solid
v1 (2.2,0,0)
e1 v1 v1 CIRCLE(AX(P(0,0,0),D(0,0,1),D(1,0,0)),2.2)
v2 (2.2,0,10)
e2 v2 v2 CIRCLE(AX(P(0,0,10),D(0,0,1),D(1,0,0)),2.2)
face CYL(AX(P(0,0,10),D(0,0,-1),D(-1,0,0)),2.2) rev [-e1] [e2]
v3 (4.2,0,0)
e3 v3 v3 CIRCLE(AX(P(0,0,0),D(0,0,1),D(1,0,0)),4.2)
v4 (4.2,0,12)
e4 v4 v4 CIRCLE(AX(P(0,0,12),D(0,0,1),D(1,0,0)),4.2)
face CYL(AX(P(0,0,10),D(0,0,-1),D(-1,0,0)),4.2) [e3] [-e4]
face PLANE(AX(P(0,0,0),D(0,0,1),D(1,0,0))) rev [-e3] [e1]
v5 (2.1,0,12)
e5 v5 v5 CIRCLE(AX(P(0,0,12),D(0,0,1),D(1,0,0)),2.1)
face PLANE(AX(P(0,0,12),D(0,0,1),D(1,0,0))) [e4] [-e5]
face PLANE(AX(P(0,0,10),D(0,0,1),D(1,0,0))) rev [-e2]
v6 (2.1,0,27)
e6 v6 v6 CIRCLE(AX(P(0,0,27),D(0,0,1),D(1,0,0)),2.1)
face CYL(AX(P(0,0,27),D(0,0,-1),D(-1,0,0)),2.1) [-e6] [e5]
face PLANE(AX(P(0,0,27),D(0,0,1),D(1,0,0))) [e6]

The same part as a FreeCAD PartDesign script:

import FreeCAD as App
import Part
import Sketcher
from FreeCAD import Vector
Q = App.Units.Quantity

doc = App.newDocument("Part")
params = doc.addObject("Spreadsheet::Sheet", "Params")
for row, (alias, value) in enumerate([
    ("sketch1_diameter", "8.4 mm"),
    ("sketch1_diameter2", "4.4 mm"),
    ("pad1_length", "10 mm"),
    ("sketch2_diameter", "8.4 mm"),
    ("pad2_length", "2 mm"),
    ("sketch3_diameter", "4.2 mm"),
    ("pad3_length", "15 mm"),
], start=1):
    params.set(f"A{row}", alias)
    params.set(f"B{row}", "=" + value)
    params.setAlias(f"B{row}", alias)

body = doc.addObject("PartDesign::Body", "Body")

sketch1 = doc.addObject("Sketcher::SketchObject", "Sketch")
body.addObject(sketch1)
sketch1.AttachmentSupport = (doc.XY_Plane, [""])
sketch1.MapMode = "FlatFace"
sketch1.addGeometry(Part.Circle(Vector(0, 0, 0), Vector(0, 0, 1), 4.2), False)
sketch1.addGeometry(Part.Circle(Vector(0, 0, 0), Vector(0, 0, 1), 2.2), False)
sketch1.addConstraint(Sketcher.Constraint("Coincident", 0, 3, -1, 1))
sketch1.addConstraint(Sketcher.Constraint("Coincident", 1, 3, -1, 1))
sketch1.addConstraint(Sketcher.Constraint("Diameter", 0, Q("8.4 mm")))
sketch1.addConstraint(Sketcher.Constraint("Diameter", 1, Q("4.4 mm")))
sketch1.setExpression("Constraints[2]", "Params.sketch1_diameter")
sketch1.setExpression("Constraints[3]", "Params.sketch1_diameter2")
pad1 = doc.addObject("PartDesign::Pad", "Pad")
body.addObject(pad1)
pad1.Profile = sketch1
pad1.setExpression("Length", "Params.pad1_length")

sketch2 = doc.addObject("Sketcher::SketchObject", "Sketch001")
body.addObject(sketch2)
sketch2.AttachmentSupport = (doc.XY_Plane, [""])
sketch2.MapMode = "FlatFace"
sketch2.AttachmentOffset = App.Placement(Vector(0, 0, 10), App.Rotation())
sketch2.addGeometry(Part.Circle(Vector(0, 0, 0), Vector(0, 0, 1), 4.2), False)
sketch2.addConstraint(Sketcher.Constraint("Coincident", 0, 3, -1, 1))
sketch2.addConstraint(Sketcher.Constraint("Diameter", 0, Q("8.4 mm")))
sketch2.setExpression("Constraints[1]", "Params.sketch2_diameter")
pad2 = doc.addObject("PartDesign::Pad", "Pad001")
body.addObject(pad2)
pad2.Profile = sketch2
pad2.setExpression("Length", "Params.pad2_length")

sketch3 = doc.addObject("Sketcher::SketchObject", "Sketch002")
body.addObject(sketch3)
sketch3.AttachmentSupport = (doc.XY_Plane, [""])
sketch3.MapMode = "FlatFace"
sketch3.AttachmentOffset = App.Placement(Vector(0, 0, 12), App.Rotation())
sketch3.addGeometry(Part.Circle(Vector(0, 0, 0), Vector(0, 0, 1), 2.1), False)
sketch3.addConstraint(Sketcher.Constraint("Coincident", 0, 3, -1, 1))
sketch3.addConstraint(Sketcher.Constraint("Diameter", 0, Q("4.2 mm")))
sketch3.setExpression("Constraints[1]", "Params.sketch3_diameter")
pad3 = doc.addObject("PartDesign::Pad", "Pad002")
body.addObject(pad3)
pad3.Profile = sketch3
pad3.setExpression("Length", "Params.pad3_length")

doc.recompute()
